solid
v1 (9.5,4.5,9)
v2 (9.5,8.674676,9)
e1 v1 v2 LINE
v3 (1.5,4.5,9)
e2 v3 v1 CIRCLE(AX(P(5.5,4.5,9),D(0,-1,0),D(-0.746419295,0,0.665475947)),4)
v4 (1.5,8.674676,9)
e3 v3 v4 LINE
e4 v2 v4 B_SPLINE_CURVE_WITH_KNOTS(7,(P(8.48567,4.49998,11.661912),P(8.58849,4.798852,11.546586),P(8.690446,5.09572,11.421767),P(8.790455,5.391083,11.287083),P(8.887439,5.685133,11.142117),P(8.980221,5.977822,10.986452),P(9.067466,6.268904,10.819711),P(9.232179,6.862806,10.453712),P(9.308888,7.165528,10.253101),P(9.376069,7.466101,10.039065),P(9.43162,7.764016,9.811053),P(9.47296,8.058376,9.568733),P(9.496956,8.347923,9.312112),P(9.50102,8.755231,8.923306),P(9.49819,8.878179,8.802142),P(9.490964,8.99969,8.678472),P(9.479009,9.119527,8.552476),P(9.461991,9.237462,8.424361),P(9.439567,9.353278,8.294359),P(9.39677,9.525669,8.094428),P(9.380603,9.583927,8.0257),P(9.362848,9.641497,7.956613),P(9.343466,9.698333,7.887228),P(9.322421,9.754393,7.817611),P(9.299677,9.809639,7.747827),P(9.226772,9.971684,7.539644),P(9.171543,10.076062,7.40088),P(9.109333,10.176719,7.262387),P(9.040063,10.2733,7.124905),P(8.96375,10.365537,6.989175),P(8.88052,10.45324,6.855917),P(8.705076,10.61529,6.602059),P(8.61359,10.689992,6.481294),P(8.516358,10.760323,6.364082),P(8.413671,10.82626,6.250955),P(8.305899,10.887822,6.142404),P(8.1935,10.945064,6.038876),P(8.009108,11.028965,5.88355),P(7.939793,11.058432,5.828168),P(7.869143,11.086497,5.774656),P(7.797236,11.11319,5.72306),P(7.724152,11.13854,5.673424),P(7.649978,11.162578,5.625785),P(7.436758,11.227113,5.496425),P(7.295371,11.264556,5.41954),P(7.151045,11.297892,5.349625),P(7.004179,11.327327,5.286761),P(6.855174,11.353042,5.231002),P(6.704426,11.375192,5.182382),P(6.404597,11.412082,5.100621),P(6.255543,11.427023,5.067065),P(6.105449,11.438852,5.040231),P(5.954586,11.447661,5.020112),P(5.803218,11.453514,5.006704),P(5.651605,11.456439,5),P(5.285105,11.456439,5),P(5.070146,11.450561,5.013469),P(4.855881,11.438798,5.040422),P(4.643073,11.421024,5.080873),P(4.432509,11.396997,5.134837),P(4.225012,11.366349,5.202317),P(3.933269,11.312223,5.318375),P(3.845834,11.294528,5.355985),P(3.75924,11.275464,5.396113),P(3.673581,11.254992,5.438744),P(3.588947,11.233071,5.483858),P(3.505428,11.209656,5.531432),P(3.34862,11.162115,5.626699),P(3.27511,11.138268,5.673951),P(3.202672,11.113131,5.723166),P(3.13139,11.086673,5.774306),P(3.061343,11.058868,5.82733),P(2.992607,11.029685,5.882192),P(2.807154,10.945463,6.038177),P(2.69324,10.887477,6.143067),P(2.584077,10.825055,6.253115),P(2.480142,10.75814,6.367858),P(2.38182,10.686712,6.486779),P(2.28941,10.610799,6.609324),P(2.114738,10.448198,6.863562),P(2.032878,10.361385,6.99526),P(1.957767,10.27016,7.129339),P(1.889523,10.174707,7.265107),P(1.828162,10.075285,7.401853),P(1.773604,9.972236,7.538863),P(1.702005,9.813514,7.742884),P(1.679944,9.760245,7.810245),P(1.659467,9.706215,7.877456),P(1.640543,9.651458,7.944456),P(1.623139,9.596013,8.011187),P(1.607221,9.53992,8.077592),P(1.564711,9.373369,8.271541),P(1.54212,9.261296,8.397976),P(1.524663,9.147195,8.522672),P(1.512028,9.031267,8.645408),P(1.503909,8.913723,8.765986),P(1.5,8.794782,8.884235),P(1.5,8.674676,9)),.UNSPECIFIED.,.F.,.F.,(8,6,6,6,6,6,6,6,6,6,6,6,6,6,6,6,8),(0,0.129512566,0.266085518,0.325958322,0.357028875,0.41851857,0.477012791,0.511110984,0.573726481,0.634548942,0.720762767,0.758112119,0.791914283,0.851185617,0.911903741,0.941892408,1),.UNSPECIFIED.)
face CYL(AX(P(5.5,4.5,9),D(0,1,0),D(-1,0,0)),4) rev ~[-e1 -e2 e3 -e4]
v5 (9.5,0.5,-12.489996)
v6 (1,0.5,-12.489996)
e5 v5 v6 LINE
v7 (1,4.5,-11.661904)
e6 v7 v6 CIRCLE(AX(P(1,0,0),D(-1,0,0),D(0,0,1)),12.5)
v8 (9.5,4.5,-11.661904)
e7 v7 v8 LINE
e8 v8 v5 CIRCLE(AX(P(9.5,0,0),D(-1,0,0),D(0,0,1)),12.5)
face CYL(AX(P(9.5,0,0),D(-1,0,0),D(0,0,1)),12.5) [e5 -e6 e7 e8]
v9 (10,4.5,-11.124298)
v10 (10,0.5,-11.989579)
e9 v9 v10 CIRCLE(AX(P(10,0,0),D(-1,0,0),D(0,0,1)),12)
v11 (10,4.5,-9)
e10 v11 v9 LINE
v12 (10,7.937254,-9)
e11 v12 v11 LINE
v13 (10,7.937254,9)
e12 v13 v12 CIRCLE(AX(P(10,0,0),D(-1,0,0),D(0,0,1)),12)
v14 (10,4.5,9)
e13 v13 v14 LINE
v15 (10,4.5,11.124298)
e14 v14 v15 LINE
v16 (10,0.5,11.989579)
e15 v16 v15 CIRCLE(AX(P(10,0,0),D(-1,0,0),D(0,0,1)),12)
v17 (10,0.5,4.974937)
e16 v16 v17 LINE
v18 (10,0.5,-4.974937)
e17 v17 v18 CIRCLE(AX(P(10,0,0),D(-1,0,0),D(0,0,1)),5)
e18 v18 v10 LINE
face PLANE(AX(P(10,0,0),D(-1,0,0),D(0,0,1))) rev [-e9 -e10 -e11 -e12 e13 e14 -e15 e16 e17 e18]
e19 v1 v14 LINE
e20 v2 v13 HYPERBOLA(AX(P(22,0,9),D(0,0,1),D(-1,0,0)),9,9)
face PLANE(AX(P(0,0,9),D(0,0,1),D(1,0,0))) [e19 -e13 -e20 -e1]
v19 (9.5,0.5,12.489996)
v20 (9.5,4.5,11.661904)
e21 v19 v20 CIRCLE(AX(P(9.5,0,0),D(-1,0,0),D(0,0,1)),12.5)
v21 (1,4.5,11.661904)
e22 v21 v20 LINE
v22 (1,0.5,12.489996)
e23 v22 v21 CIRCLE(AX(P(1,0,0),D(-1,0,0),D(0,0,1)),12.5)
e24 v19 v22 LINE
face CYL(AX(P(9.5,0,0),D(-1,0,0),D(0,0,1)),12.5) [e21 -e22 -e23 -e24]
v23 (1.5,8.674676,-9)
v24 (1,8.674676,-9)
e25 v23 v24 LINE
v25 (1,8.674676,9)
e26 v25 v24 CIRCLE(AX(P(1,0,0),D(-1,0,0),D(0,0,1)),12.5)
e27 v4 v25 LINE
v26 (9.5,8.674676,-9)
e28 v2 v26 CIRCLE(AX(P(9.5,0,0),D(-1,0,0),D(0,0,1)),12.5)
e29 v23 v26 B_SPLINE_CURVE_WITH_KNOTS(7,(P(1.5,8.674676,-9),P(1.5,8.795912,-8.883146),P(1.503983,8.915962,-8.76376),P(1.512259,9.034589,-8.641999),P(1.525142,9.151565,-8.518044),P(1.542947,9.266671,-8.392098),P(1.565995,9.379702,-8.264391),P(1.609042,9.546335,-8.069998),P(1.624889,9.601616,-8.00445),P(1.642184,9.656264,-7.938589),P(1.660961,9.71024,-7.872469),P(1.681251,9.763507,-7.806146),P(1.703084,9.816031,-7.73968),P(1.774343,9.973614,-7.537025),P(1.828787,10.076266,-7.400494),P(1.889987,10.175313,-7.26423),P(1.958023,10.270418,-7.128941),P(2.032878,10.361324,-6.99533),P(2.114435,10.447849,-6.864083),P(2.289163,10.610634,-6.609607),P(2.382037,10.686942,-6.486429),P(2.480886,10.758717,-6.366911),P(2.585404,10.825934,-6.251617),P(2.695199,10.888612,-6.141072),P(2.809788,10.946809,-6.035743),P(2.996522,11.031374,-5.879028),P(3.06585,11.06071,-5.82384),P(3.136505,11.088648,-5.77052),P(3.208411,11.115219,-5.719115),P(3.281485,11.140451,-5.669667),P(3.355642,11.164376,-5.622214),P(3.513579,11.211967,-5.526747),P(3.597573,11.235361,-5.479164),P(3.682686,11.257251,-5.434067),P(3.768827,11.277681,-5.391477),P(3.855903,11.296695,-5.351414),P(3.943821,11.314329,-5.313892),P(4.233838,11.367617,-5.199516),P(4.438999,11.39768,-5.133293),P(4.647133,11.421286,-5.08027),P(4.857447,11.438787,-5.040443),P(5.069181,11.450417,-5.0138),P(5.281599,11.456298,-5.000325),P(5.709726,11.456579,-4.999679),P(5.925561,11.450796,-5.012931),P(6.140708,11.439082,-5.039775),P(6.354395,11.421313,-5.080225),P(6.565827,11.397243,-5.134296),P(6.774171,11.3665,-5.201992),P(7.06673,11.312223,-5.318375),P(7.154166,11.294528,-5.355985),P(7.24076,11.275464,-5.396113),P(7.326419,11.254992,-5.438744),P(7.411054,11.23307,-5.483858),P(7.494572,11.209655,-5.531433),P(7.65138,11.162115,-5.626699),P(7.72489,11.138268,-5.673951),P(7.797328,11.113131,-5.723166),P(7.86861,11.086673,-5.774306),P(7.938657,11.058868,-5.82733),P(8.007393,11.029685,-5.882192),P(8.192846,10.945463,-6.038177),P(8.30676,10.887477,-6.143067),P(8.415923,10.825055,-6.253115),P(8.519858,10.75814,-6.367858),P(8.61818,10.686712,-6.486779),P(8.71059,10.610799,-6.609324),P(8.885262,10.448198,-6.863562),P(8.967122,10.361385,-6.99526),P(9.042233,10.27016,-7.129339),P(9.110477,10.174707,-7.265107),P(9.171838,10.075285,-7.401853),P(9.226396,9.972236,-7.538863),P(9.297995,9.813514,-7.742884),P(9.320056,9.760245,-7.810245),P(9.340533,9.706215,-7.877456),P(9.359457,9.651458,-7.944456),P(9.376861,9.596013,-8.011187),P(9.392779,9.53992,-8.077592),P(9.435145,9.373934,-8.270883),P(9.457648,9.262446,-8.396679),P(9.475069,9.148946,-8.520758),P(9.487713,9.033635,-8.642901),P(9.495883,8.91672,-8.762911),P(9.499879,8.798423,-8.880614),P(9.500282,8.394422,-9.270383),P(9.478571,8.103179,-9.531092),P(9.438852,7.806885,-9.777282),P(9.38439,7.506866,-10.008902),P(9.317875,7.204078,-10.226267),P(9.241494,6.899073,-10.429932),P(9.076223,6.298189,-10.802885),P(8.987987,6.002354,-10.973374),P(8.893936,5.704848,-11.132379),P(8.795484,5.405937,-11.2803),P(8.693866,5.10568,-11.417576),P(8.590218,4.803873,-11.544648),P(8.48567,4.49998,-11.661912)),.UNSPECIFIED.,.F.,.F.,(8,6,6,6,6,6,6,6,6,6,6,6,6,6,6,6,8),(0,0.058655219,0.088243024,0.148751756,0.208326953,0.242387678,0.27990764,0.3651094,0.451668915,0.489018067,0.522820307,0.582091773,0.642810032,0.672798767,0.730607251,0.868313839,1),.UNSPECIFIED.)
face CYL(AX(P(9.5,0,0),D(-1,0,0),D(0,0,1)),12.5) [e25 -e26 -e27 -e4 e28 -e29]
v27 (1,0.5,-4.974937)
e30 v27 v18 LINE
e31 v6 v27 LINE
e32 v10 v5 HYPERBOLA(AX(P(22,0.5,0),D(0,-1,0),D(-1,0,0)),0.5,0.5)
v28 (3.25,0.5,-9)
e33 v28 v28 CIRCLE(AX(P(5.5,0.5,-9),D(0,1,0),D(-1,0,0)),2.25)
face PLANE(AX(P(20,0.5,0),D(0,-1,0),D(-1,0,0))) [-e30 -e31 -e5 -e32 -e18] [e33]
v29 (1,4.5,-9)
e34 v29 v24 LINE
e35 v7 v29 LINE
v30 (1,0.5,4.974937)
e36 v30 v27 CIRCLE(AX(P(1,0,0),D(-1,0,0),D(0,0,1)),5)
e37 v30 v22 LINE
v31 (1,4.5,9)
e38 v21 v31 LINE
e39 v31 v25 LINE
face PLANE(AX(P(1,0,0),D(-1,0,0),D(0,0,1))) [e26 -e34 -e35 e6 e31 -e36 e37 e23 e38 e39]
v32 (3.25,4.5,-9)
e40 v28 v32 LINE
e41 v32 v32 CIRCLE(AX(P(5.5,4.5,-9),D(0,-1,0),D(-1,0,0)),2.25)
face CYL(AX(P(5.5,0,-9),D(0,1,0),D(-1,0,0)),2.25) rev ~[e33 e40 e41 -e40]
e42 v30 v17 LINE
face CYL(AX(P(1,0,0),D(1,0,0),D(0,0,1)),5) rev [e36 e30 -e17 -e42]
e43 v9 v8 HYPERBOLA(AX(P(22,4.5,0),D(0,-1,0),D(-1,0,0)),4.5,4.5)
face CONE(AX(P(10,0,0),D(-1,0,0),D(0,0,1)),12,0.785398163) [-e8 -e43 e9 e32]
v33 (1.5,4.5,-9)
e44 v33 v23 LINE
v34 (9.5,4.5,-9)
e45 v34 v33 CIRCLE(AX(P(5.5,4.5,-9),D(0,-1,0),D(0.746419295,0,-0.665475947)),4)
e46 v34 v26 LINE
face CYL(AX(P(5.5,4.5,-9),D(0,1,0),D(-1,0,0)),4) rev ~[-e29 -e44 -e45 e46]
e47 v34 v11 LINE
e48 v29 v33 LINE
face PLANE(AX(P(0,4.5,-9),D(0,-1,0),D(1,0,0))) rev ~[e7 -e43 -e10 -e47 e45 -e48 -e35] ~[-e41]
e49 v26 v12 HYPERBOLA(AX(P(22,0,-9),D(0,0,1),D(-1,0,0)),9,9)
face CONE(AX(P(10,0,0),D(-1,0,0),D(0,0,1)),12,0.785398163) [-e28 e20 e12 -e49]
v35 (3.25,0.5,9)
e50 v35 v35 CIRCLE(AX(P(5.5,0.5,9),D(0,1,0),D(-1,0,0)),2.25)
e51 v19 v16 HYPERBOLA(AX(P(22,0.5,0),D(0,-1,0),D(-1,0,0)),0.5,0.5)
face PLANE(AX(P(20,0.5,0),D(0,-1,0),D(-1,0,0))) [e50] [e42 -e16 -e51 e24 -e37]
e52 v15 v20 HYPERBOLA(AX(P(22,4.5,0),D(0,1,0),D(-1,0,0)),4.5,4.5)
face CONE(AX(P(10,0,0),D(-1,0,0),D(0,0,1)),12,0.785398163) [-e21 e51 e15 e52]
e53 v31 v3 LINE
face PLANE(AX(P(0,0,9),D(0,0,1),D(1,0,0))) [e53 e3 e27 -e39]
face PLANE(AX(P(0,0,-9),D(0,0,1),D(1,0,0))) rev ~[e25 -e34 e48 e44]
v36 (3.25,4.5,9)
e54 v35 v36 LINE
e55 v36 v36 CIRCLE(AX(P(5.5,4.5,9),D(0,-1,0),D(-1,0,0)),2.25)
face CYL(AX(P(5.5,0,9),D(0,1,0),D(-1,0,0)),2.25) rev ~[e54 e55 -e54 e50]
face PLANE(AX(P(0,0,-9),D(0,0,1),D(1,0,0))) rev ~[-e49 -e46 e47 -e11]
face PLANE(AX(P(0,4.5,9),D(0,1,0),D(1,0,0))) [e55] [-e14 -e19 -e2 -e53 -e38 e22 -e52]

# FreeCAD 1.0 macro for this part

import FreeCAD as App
import Part
import Sketcher
Q = App.Units.Quantity


def add_polygon(sketch, points):
    """Adds a closed chain of lines whose ends are joined by coincident constraints."""
    first, n = sketch.GeometryCount, len(points)
    for a, b in zip(points, points[1:] + points[:1]):
        sketch.addGeometry(Part.LineSegment(App.Vector(*a, 0), App.Vector(*b, 0)), False)
    for i in range(n):
        sketch.addConstraint(Sketcher.Constraint("Coincident", first + i, 2, first + (i + 1) % n, 1))

doc = App.newDocument("Part")
body = doc.addObject("PartDesign::Body", "Body")

sketch1 = body.newObject("Sketcher::SketchObject", "Sketch")
sketch1.AttachmentSupport = (doc.getObject("XY_Plane"), [""])
sketch1.MapMode = "FlatFace"
add_polygon(sketch1, [(1, 12.5), (1, 5), (10, 5), (10, 12), (9.5, 12.5)])
sketch1.addConstraint(Sketcher.Constraint("Vertical", 0))
sketch1.addConstraint(Sketcher.Constraint("Horizontal", 1))
sketch1.addConstraint(Sketcher.Constraint("Vertical", 2))
sketch1.addConstraint(Sketcher.Constraint("Horizontal", 4))
sketch1.addConstraint(Sketcher.Constraint("DistanceX", 1, 1, 1, 2, 9.0))
sketch1.addConstraint(Sketcher.Constraint("DistanceY", 2, 1, 2, 2, 7.0))
sketch1.addConstraint(Sketcher.Constraint("Angle", 3, Q("135 deg")))
sketch1.addConstraint(Sketcher.Constraint("DistanceX", 4, 2, 4, 1, 8.5))
sketch1.addConstraint(Sketcher.Constraint("DistanceX", -1, 1, 0, 2, 1.0))
sketch1.addConstraint(Sketcher.Constraint("DistanceY", -1, 1, 0, 2, 5.0))
revolution = body.newObject("PartDesign::Revolution", "Revolution")
revolution.Profile = sketch1
revolution.ReferenceAxis = (sketch1, ["H_Axis"])
revolution.Angle = 180
revolution.Midplane = True

sketch2 = body.newObject("Sketcher::SketchObject", "Sketch001")
sketch2.AttachmentSupport = (doc.getObject("XY_Plane"), [""])
sketch2.MapMode = "FlatFace"
add_polygon(sketch2, [(20, 0.5), (0, 0.5), (0, 0), (20, 0)])
sketch2.addConstraint(Sketcher.Constraint("Horizontal", 0))
sketch2.addConstraint(Sketcher.Constraint("Vertical", 1))
sketch2.addConstraint(Sketcher.Constraint("Horizontal", 2))
sketch2.addConstraint(Sketcher.Constraint("Vertical", 3))
sketch2.addConstraint(Sketcher.Constraint("Coincident", 1, 2, -1, 1))
sketch2.addConstraint(Sketcher.Constraint("DistanceX", 0, 2, 0, 1, 20.0))
sketch2.addConstraint(Sketcher.Constraint("DistanceY", 1, 2, 1, 1, 0.5))
pocket1 = body.newObject("PartDesign::Pocket", "Pocket")
pocket1.Profile = sketch2
pocket1.Length = 50
pocket1.Midplane = True

sketch3 = body.newObject("Sketcher::SketchObject", "Sketch002")
sketch3.AttachmentSupport = (doc.getObject("XY_Plane"), [""])
sketch3.MapMode = "FlatFace"
sketch3.AttachmentOffset = App.Placement(App.Vector(0, 0, 9), App.Rotation())
add_polygon(sketch3, [(5.5, 0), (5.5, 12.5), (1.5, 12.5), (1.5, 4.5), (3.2, 4.5), (3.2, 0)])
sketch3.addGeometry(Part.LineSegment(App.Vector(5.5, 0, 0), App.Vector(5.5, 12.5, 0)), True)
sketch3.addConstraint(Sketcher.Constraint("Vertical", 0))
sketch3.addConstraint(Sketcher.Constraint("Horizontal", 1))
sketch3.addConstraint(Sketcher.Constraint("Vertical", 2))
sketch3.addConstraint(Sketcher.Constraint("Horizontal", 3))
sketch3.addConstraint(Sketcher.Constraint("Vertical", 4))
sketch3.addConstraint(Sketcher.Constraint("Horizontal", 5))
sketch3.addConstraint(Sketcher.Constraint("Vertical", 6))
sketch3.addConstraint(Sketcher.Constraint("Coincident", 6, 1, 5, 2))
sketch3.addConstraint(Sketcher.Constraint("PointOnObject", 4, 2, -1))
sketch3.addConstraint(Sketcher.Constraint("Horizontal", 1, 2, 6, 2))
sketch3.addConstraint(Sketcher.Constraint("DistanceX", 1, 2, 1, 1, 4.0))
sketch3.addConstraint(Sketcher.Constraint("DistanceY", 2, 2, 2, 1, 8.0))
sketch3.addConstraint(Sketcher.Constraint("DistanceY", 0, 1, 0, 2, 12.5))
sketch3.addConstraint(Sketcher.Constraint("DistanceX", 3, 1, 3, 2, 1.75))
sketch3.addConstraint(Sketcher.Constraint("DistanceX", -1, 1, 0, 2, 5.5))
groove = body.newObject("PartDesign::Groove", "Groove")
groove.Profile = sketch3
groove.ReferenceAxis = (sketch3, ["Axis0"])
groove.Angle = 360

sketch4 = body.newObject("Sketcher::SketchObject", "Sketch003")
sketch4.AttachmentSupport = (doc.getObject("XY_Plane"), [""])
sketch4.MapMode = "FlatFace"
sketch4.AttachmentOffset = App.Placement(App.Vector(0, 0, -9), App.Rotation())
add_polygon(sketch4, [(5.5, 0), (5.5, 12.5), (1.5, 12.5), (1.5, 4.5), (3.2, 4.5), (3.2, 0)])
sketch4.addGeometry(Part.LineSegment(App.Vector(5.5, 0, 0), App.Vector(5.5, 12.5, 0)), True)
sketch4.addConstraint(Sketcher.Constraint("Vertical", 0))
sketch4.addConstraint(Sketcher.Constraint("Horizontal", 1))
sketch4.addConstraint(Sketcher.Constraint("Vertical", 2))
sketch4.addConstraint(Sketcher.Constraint("Horizontal", 3))
sketch4.addConstraint(Sketcher.Constraint("Vertical", 4))
sketch4.addConstraint(Sketcher.Constraint("Horizontal", 5))
sketch4.addConstraint(Sketcher.Constraint("Vertical", 6))
sketch4.addConstraint(Sketcher.Constraint("Coincident", 6, 1, 5, 2))
sketch4.addConstraint(Sketcher.Constraint("PointOnObject", 4, 2, -1))
sketch4.addConstraint(Sketcher.Constraint("Horizontal", 1, 2, 6, 2))
sketch4.addConstraint(Sketcher.Constraint("DistanceX", 1, 2, 1, 1, 4.0))
sketch4.addConstraint(Sketcher.Constraint("DistanceY", 2, 2, 2, 1, 8.0))
sketch4.addConstraint(Sketcher.Constraint("DistanceY", 0, 1, 0, 2, 12.5))
sketch4.addConstraint(Sketcher.Constraint("DistanceX", 3, 1, 3, 2, 1.75))
sketch4.addConstraint(Sketcher.Constraint("DistanceX", -1, 1, 0, 2, 5.5))
groove2 = body.newObject("PartDesign::Groove", "Groove001")
groove2.Profile = sketch4
groove2.ReferenceAxis = (sketch4, ["Axis0"])
groove2.Angle = 360

sketch5 = body.newObject("Sketcher::SketchObject", "Sketch004")
sketch5.AttachmentSupport = (doc.getObject("XY_Plane"), [""])
sketch5.MapMode = "FlatFace"
sketch5.AttachmentOffset = App.Placement(App.Vector(0, 0, 9), App.Rotation())
add_polygon(sketch5, [(20, 17), (0, 17), (0, 4), (20, 4)])
sketch5.addConstraint(Sketcher.Constraint("Horizontal", 0))
sketch5.addConstraint(Sketcher.Constraint("Vertical", 1))
sketch5.addConstraint(Sketcher.Constraint("Horizontal", 2))
sketch5.addConstraint(Sketcher.Constraint("Vertical", 3))
sketch5.addConstraint(Sketcher.Constraint("PointOnObject", 0, 2, -2))
sketch5.addConstraint(Sketcher.Constraint("DistanceX", 0, 2, 0, 1, 20.0))
sketch5.addConstraint(Sketcher.Constraint("DistanceY", 1, 2, 1, 1, 12.5))
sketch5.addConstraint(Sketcher.Constraint("DistanceY", -1, 1, 0, 2, 17.0))
pocket2 = body.newObject("PartDesign::Pocket", "Pocket001")
pocket2.Profile = sketch5
pocket2.Length = 25
pocket2.Reversed = True

sketch6 = body.newObject("Sketcher::SketchObject", "Sketch005")
sketch6.AttachmentSupport = (doc.getObject("XY_Plane"), [""])
sketch6.MapMode = "FlatFace"
sketch6.AttachmentOffset = App.Placement(App.Vector(0, 0, -9), App.Rotation())
add_polygon(sketch6, [(20, 17), (0, 17), (0, 4), (20, 4)])
sketch6.addConstraint(Sketcher.Constraint("Horizontal", 0))
sketch6.addConstraint(Sketcher.Constraint("Vertical", 1))
sketch6.addConstraint(Sketcher.Constraint("Horizontal", 2))
sketch6.addConstraint(Sketcher.Constraint("Vertical", 3))
sketch6.addConstraint(Sketcher.Constraint("PointOnObject", 0, 2, -2))
sketch6.addConstraint(Sketcher.Constraint("DistanceX", 0, 2, 0, 1, 20.0))
sketch6.addConstraint(Sketcher.Constraint("DistanceY", 1, 2, 1, 1, 12.5))
sketch6.addConstraint(Sketcher.Constraint("DistanceY", -1, 1, 0, 2, 17.0))
pocket3 = body.newObject("PartDesign::Pocket", "Pocket002")
pocket3.Profile = sketch6
pocket3.Length = 25

doc.recompute()
